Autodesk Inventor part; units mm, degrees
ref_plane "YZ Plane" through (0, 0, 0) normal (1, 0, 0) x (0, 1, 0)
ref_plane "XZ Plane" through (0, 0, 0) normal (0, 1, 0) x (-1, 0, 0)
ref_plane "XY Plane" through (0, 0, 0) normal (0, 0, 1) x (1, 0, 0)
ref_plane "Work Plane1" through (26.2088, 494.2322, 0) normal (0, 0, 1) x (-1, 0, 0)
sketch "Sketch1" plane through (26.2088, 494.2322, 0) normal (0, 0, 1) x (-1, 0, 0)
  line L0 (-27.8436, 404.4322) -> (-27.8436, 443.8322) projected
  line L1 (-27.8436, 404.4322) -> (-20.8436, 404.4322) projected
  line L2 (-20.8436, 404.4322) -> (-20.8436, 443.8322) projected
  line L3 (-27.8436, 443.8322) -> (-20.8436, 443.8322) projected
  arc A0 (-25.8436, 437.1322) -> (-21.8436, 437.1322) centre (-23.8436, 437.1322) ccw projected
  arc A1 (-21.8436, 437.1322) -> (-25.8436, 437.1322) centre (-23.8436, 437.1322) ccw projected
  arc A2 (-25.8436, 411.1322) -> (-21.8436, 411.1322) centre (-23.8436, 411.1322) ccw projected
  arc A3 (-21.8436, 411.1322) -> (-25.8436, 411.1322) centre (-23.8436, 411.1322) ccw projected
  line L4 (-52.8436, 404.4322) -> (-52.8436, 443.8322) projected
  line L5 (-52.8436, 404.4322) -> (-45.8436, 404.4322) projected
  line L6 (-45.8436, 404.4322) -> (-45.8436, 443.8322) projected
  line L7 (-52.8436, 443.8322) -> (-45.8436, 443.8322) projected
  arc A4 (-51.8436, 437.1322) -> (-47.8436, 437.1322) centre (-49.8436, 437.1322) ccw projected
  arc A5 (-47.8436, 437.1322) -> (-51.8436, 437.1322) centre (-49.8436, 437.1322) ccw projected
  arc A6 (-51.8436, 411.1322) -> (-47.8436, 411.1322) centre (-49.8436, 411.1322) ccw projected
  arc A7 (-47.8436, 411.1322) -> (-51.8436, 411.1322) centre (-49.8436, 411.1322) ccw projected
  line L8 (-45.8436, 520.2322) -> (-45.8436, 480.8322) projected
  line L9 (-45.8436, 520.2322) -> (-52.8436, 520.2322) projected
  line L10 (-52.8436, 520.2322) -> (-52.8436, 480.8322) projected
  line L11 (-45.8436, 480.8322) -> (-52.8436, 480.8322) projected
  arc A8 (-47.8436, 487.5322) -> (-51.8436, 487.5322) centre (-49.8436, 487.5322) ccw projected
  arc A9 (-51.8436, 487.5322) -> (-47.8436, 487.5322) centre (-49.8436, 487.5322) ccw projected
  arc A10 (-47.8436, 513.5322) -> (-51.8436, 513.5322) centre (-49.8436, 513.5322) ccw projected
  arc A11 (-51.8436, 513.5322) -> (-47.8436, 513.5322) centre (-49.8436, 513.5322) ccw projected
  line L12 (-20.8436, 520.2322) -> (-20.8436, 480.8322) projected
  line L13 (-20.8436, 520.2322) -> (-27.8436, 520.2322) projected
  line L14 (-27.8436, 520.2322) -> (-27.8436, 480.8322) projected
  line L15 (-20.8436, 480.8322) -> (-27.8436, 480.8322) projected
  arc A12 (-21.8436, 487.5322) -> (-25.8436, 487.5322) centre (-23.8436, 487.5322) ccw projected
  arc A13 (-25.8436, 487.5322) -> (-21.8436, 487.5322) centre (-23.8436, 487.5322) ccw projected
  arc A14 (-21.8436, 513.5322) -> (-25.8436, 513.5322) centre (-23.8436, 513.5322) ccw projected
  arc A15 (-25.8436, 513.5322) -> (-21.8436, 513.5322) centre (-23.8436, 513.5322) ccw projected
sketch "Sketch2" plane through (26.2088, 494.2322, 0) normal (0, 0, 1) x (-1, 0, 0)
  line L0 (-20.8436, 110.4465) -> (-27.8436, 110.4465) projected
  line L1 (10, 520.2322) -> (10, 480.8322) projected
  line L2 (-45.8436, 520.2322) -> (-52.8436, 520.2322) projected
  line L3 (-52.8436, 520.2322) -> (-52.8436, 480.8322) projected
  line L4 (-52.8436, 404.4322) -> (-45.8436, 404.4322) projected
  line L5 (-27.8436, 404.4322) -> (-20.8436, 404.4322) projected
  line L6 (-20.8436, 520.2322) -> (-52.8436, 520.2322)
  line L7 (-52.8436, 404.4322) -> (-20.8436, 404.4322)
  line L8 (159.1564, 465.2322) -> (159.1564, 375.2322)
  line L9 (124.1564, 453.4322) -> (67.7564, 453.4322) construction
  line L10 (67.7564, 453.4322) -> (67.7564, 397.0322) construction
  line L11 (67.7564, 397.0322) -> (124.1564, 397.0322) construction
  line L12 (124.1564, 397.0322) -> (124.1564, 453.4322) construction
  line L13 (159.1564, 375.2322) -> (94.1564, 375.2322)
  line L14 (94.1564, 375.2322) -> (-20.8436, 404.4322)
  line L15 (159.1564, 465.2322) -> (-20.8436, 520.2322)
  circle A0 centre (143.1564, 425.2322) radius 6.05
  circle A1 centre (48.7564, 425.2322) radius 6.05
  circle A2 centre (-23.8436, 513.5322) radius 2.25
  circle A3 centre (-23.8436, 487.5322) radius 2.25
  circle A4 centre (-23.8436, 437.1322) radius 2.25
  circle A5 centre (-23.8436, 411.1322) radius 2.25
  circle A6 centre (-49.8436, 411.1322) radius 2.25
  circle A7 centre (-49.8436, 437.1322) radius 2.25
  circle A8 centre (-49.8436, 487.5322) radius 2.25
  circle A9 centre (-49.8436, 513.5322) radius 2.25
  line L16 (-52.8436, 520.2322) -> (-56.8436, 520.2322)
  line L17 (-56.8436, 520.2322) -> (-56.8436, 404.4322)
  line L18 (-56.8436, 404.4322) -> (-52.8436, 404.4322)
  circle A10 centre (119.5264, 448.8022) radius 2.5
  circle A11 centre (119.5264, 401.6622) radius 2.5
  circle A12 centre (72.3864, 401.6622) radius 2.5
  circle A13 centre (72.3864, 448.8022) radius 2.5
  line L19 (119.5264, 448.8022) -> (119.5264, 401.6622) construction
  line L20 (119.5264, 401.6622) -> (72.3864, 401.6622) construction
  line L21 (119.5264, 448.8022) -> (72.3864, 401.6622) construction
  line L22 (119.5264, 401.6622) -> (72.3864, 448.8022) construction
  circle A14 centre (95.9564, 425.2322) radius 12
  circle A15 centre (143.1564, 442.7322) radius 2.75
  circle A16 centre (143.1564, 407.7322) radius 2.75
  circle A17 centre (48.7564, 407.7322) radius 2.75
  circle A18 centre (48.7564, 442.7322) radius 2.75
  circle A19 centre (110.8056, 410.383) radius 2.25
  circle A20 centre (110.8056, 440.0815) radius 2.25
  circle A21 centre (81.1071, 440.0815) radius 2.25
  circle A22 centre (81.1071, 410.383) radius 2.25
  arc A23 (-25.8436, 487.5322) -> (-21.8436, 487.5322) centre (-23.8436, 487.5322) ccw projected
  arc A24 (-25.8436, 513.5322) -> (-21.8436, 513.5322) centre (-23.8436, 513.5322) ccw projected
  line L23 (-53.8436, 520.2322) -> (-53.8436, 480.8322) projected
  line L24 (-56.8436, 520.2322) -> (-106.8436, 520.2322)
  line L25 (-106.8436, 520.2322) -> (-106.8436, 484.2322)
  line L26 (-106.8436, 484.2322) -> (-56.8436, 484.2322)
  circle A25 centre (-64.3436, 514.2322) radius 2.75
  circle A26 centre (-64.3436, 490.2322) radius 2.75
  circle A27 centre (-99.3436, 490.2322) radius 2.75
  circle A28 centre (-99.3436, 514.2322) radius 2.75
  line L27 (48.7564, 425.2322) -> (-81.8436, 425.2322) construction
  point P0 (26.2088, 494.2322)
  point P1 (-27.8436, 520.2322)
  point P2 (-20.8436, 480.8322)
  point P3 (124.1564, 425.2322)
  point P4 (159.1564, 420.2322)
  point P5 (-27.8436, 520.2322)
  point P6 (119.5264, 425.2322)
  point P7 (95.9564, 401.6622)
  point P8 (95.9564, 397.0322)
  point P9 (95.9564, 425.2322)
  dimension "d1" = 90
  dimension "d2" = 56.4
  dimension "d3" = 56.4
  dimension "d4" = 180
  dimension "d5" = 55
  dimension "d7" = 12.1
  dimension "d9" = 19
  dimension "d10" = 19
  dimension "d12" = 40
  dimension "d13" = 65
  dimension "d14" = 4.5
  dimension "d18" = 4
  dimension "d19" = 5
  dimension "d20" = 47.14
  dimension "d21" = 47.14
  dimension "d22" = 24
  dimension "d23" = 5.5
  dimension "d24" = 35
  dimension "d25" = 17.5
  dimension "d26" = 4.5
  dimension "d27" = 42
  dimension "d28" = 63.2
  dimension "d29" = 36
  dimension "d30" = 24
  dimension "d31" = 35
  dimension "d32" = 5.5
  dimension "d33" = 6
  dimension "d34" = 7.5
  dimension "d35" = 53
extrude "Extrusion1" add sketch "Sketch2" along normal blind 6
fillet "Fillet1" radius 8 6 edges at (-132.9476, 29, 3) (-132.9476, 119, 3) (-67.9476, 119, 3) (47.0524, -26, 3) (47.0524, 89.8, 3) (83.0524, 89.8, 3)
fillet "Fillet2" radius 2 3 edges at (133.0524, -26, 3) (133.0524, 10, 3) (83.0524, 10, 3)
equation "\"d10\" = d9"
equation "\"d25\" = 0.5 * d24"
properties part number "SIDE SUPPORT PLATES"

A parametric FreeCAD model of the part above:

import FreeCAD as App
import Part
import Sketcher

V = App.Vector
Q = App.Units.Quantity


def edges_at(feature, points):
    """Names of the edges that pass closest to the given points."""
    edges = feature.Shape.Edges
    near = lambda p: min(range(len(edges)), key=lambda i: edges[i].distToShape(Part.Vertex(*p))[0])
    return sorted({f"Edge{near(p) + 1}" for p in points})

doc = App.newDocument("Part")
body = doc.addObject("PartDesign::Body", "Body")

sketch1 = body.newObject("Sketcher::SketchObject", "Sketch")
sketch1.AttachmentSupport = (doc.getObject("XY_Plane"), [""])
sketch1.MapMode = "FlatFace"
sketch1.addGeometry(Part.LineSegment(V(47.1, -26, 0), V(133.1, -26, 0)), False)
sketch1.addGeometry(Part.LineSegment(V(133.1, -26, 0), V(133.1, 10, 0)), False)
sketch1.addGeometry(Part.LineSegment(V(133.1, 10, 0), V(83.1, 10, 0)), False)
sketch1.addGeometry(Part.LineSegment(V(83.1, 10, 0), V(83.1, 89.8, 0)), False)
sketch1.addGeometry(Part.LineSegment(V(83.1, 89.8, 0), V(47.1, 89.8, 0)), False)
sketch1.addGeometry(Part.LineSegment(V(47.1, 89.8, 0), V(-67.9, 119, 0)), False)
sketch1.addGeometry(Part.LineSegment(V(-67.9, 119, 0), V(-132.9, 119, 0)), False)
sketch1.addGeometry(Part.LineSegment(V(-132.9, 119, 0), V(-132.9, 29, 0)), False)
sketch1.addGeometry(Part.LineSegment(V(-132.9, 29, 0), V(47.1, -26, 0)), False)
sketch1.addGeometry(Part.Circle(V(76.1, 83.1, 0), V(0, 0, 1), 2.2), False)
sketch1.addGeometry(Part.Circle(V(50.1, 83.1, 0), V(0, 0, 1), 2.2), False)
sketch1.addGeometry(Part.Circle(V(76.1, 57.1, 0), V(0, 0, 1), 2.2), False)
sketch1.addGeometry(Part.Circle(V(50.1, 57.1, 0), V(0, 0, 1), 2.2), False)
sketch1.addGeometry(Part.Circle(V(-22.5, 86.5, 0), V(0, 0, 1), 2.8), False)
sketch1.addGeometry(Part.Circle(V(-46.2, 92.6, 0), V(0, 0, 1), 2.5), False)
sketch1.addGeometry(Part.Circle(V(-54.9, 83.8, 0), V(0, 0, 1), 2.2), False)
sketch1.addGeometry(Part.Circle(V(-93.3, 92.6, 0), V(0, 0, 1), 2.5), False)
sketch1.addGeometry(Part.Circle(V(-84.6, 83.8, 0), V(0, 0, 1), 2.2), False)
sketch1.addGeometry(Part.Circle(V(-116.9, 86.5, 0), V(0, 0, 1), 2.8), False)
sketch1.addGeometry(Part.Circle(V(-22.5, 69, 0), V(0, 0, 1), 6), False)
sketch1.addGeometry(Part.Circle(V(-22.5, 51.5, 0), V(0, 0, 1), 2.8), False)
sketch1.addGeometry(Part.Circle(V(-54.9, 54.2, 0), V(0, 0, 1), 2.2), False)
sketch1.addGeometry(Part.Circle(V(-69.7, 69, 0), V(0, 0, 1), 12), False)
sketch1.addGeometry(Part.Circle(V(-116.9, 69, 0), V(0, 0, 1), 6), False)
sketch1.addGeometry(Part.Circle(V(-84.6, 54.2, 0), V(0, 0, 1), 2.2), False)
sketch1.addGeometry(Part.Circle(V(-116.9, 51.5, 0), V(0, 0, 1), 2.8), False)
sketch1.addGeometry(Part.Circle(V(76.1, 6.7, 0), V(0, 0, 1), 2.2), False)
sketch1.addGeometry(Part.Circle(V(76.1, -19.3, 0), V(0, 0, 1), 2.2), False)
sketch1.addGeometry(Part.Circle(V(50.1, 6.7, 0), V(0, 0, 1), 2.2), False)
sketch1.addGeometry(Part.Circle(V(50.1, -19.3, 0), V(0, 0, 1), 2.2), False)
sketch1.addGeometry(Part.Circle(V(-46.2, 45.4, 0), V(0, 0, 1), 2.5), False)
sketch1.addGeometry(Part.Circle(V(-93.3, 45.4, 0), V(0, 0, 1), 2.5), False)
sketch1.addGeometry(Part.Circle(V(90.6, -20, 0), V(0, 0, 1), 2.8), False)
sketch1.addGeometry(Part.Circle(V(125.6, 4, 0), V(0, 0, 1), 2.8), False)
sketch1.addGeometry(Part.Circle(V(90.6, 4, 0), V(0, 0, 1), 2.8), False)
sketch1.addGeometry(Part.Circle(V(125.6, -20, 0), V(0, 0, 1), 2.8), False)
sketch1.addConstraint(Sketcher.Constraint("Coincident", 0, 2, 1, 1))
sketch1.addConstraint(Sketcher.Constraint("Coincident", 1, 2, 2, 1))
sketch1.addConstraint(Sketcher.Constraint("Coincident", 2, 2, 3, 1))
sketch1.addConstraint(Sketcher.Constraint("Coincident", 3, 2, 4, 1))
sketch1.addConstraint(Sketcher.Constraint("Coincident", 4, 2, 5, 1))
sketch1.addConstraint(Sketcher.Constraint("Coincident", 5, 2, 6, 1))
sketch1.addConstraint(Sketcher.Constraint("Coincident", 6, 2, 7, 1))
sketch1.addConstraint(Sketcher.Constraint("Coincident", 7, 2, 8, 1))
sketch1.addConstraint(Sketcher.Constraint("Coincident", 8, 2, 0, 1))
sketch1.addConstraint(Sketcher.Constraint("Horizontal", 0))
sketch1.addConstraint(Sketcher.Constraint("Vertical", 1))
sketch1.addConstraint(Sketcher.Constraint("Horizontal", 2))
sketch1.addConstraint(Sketcher.Constraint("Vertical", 3))
sketch1.addConstraint(Sketcher.Constraint("Horizontal", 4))
sketch1.addConstraint(Sketcher.Constraint("Horizontal", 6))
sketch1.addConstraint(Sketcher.Constraint("Vertical", 7))
sketch1.addConstraint(Sketcher.Constraint("Equal", 9, 10))
sketch1.addConstraint(Sketcher.Constraint("Equal", 10, 11))
sketch1.addConstraint(Sketcher.Constraint("Equal", 11, 12))
sketch1.addConstraint(Sketcher.Constraint("Equal", 12, 15))
sketch1.addConstraint(Sketcher.Constraint("Equal", 14, 16))
sketch1.addConstraint(Sketcher.Constraint("Equal", 15, 17))
sketch1.addConstraint(Sketcher.Constraint("Equal", 13, 18))
sketch1.addConstraint(Sketcher.Constraint("Equal", 18, 20))
sketch1.addConstraint(Sketcher.Constraint("Equal", 17, 21))
sketch1.addConstraint(Sketcher.Constraint("Equal", 19, 23))
sketch1.addConstraint(Sketcher.Constraint("Equal", 21, 24))
sketch1.addConstraint(Sketcher.Constraint("Equal", 20, 25))
sketch1.addConstraint(Sketcher.Constraint("Equal", 24, 26))
sketch1.addConstraint(Sketcher.Constraint("Equal", 26, 27))
sketch1.addConstraint(Sketcher.Constraint("Equal", 27, 28))
sketch1.addConstraint(Sketcher.Constraint("Equal", 28, 29))
sketch1.addConstraint(Sketcher.Constraint("Equal", 16, 30))
sketch1.addConstraint(Sketcher.Constraint("Equal", 30, 31))
sketch1.addConstraint(Sketcher.Constraint("Equal", 25, 32))
sketch1.addConstraint(Sketcher.Constraint("Equal", 32, 33))
sketch1.addConstraint(Sketcher.Constraint("Equal", 33, 34))
sketch1.addConstraint(Sketcher.Constraint("Equal", 34, 35))
sketch1.addConstraint(Sketcher.Constraint("Horizontal", 9, 3, 10, 3))
sketch1.addConstraint(Sketcher.Constraint("Horizontal", 11, 3, 12, 3))
sketch1.addConstraint(Sketcher.Constraint("Horizontal", 14, 3, 16, 3))
sketch1.addConstraint(Sketcher.Constraint("Horizontal", 15, 3, 17, 3))
sketch1.addConstraint(Sketcher.Constraint("Horizontal", 13, 3, 18, 3))
sketch1.addConstraint(Sketcher.Constraint("Horizontal", 19, 3, 22, 3))
sketch1.addConstraint(Sketcher.Constraint("Horizontal", 22, 3, 23, 3))
sketch1.addConstraint(Sketcher.Constraint("Horizontal", 21, 3, 24, 3))
sketch1.addConstraint(Sketcher.Constraint("Horizontal", 20, 3, 25, 3))
sketch1.addConstraint(Sketcher.Constraint("Horizontal", 26, 3, 28, 3))
sketch1.addConstraint(Sketcher.Constraint("Horizontal", 27, 3, 29, 3))
sketch1.addConstraint(Sketcher.Constraint("Horizontal", 30, 3, 31, 3))
sketch1.addConstraint(Sketcher.Constraint("Horizontal", 33, 3, 34, 3))
sketch1.addConstraint(Sketcher.Constraint("Horizontal", 32, 3, 35, 3))
sketch1.addConstraint(Sketcher.Constraint("Vertical", 9, 3, 11, 3))
sketch1.addConstraint(Sketcher.Constraint("Vertical", 10, 3, 12, 3))
sketch1.addConstraint(Sketcher.Constraint("Vertical", 13, 3, 19, 3))
sketch1.addConstraint(Sketcher.Constraint("Vertical", 19, 3, 20, 3))
sketch1.addConstraint(Sketcher.Constraint("Vertical", 15, 3, 21, 3))
sketch1.addConstraint(Sketcher.Constraint("Vertical", 18, 3, 23, 3))
sketch1.addConstraint(Sketcher.Constraint("Vertical", 17, 3, 24, 3))
sketch1.addConstraint(Sketcher.Constraint("Vertical", 23, 3, 25, 3))
sketch1.addConstraint(Sketcher.Constraint("Vertical", 11, 3, 26, 3))
sketch1.addConstraint(Sketcher.Constraint("Vertical", 26, 3, 27, 3))
sketch1.addConstraint(Sketcher.Constraint("Vertical", 12, 3, 28, 3))
sketch1.addConstraint(Sketcher.Constraint("Vertical", 28, 3, 29, 3))
sketch1.addConstraint(Sketcher.Constraint("Vertical", 14, 3, 30, 3))
sketch1.addConstraint(Sketcher.Constraint("Vertical", 16, 3, 31, 3))
sketch1.addConstraint(Sketcher.Constraint("Vertical", 32, 3, 34, 3))
sketch1.addConstraint(Sketcher.Constraint("Vertical", 33, 3, 35, 3))
sketch1.addConstraint(Sketcher.Constraint("Vertical", 4, 2, 8, 2))
sketch1.addConstraint(Sketcher.Constraint("Equal", 4, 1))
sketch1.addConstraint(Sketcher.Constraint("Diameter", 14, Q("5 mm")))
sketch1.addConstraint(Sketcher.Constraint("Diameter", 22, Q("24 mm")))
sketch1.addConstraint(Sketcher.Constraint("Diameter", 9, Q("4.5 mm")))
sketch1.addConstraint(Sketcher.Constraint("Diameter", 13, Q("5.5 mm")))
sketch1.addConstraint(Sketcher.Constraint("Diameter", 19, Q("12.1 mm")))
sketch1.addConstraint(Sketcher.Constraint("DistanceX", 4, 2, 4, 1, Q("36 mm")))
sketch1.addConstraint(Sketcher.Constraint("DistanceX", 6, 2, 6, 1, Q("65 mm")))
sketch1.addConstraint(Sketcher.Constraint("DistanceY", 7, 2, 7, 1, Q("90 mm")))
sketch1.addConstraint(Sketcher.Constraint("DistanceY", -1, 1, 33, 3, Q("4 mm")))
sketch1.addConstraint(Sketcher.Constraint("DistanceY", 20, 3, 13, 3, Q("35 mm")))
sketch1.addConstraint(Sketcher.Constraint("DistanceX", 32, 3, 33, 3, Q("35 mm")))
sketch1.addConstraint(Sketcher.Constraint("DistanceY", 32, 3, 33, 3, Q("24 mm")))
sketch1.addConstraint(Sketcher.Constraint("DistanceY", 0, 2, 35, 3, Q("6 mm")))
sketch1.addConstraint(Sketcher.Constraint("DistanceY", 7, 2, 23, 3, Q("40 mm")))
sketch1.addConstraint(Sketcher.Constraint("DistanceY", 19, 3, 13, 3, Q("17.5 mm")))
sketch1.addConstraint(Sketcher.Constraint("DistanceX", 35, 3, 0, 2, Q("7.5 mm")))
sketch1.addConstraint(Sketcher.Constraint("DistanceX", 2, 2, 34, 3, Q("7.5 mm")))
sketch1.addConstraint(Sketcher.Constraint("DistanceX", 16, 3, 14, 3, Q("47.14 mm")))
sketch1.addConstraint(Sketcher.Constraint("DistanceY", 3, 1, 3, 2, Q("79.8 mm")))
sketch1.addConstraint(Sketcher.Constraint("DistanceY", -1, 1, 19, 3, Q("69 mm")))
sketch1.addConstraint(Sketcher.Constraint("DistanceX", 10, 3, 9, 3, Q("26 mm")))
sketch1.addConstraint(Sketcher.Constraint("DistanceY", 11, 3, 9, 3, Q("26 mm")))
sketch1.addConstraint(Sketcher.Constraint("DistanceY", 27, 3, 26, 3, Q("26 mm")))
sketch1.addConstraint(Sketcher.Constraint("DistanceX", 27, 3, 0, 2, Q("57 mm")))
sketch1.addConstraint(Sketcher.Constraint("DistanceX", 6, 2, 18, 3, Q("16 mm")))
sketch1.addConstraint(Sketcher.Constraint("DistanceY", -1, 1, 9, 3, Q("83.1 mm")))
sketch1.addConstraint(Sketcher.Constraint("DistanceY", -1, 1, 26, 3, Q("6.7 mm")))
sketch1.addConstraint(Sketcher.Constraint("Angle", 8, Q("-16.9908 deg")))
sketch1.addConstraint(Sketcher.Constraint("DistanceX", 13, 3, 10, 3, Q("72.6 mm")))
sketch1.addConstraint(Sketcher.Constraint("DistanceX", 23, 3, 22, 3, Q("47.2 mm")))
sketch1.addConstraint(Sketcher.Constraint("DistanceY", -1, 1, 14, 3, Q("92.57 mm")))
sketch1.addConstraint(Sketcher.Constraint("DistanceY", -1, 1, 30, 3, Q("45.43 mm")))
sketch1.addConstraint(Sketcher.Constraint("DistanceX", 14, 3, 13, 3, Q("23.63 mm")))
sketch1.addConstraint(Sketcher.Constraint("DistanceX", -1, 1, 9, 3, Q("76.0524 mm")))
sketch1.addConstraint(Sketcher.Constraint("DistanceX", 15, 3, -1, 1, Q("54.8983 mm")))
sketch1.addConstraint(Sketcher.Constraint("DistanceY", -1, 1, 15, 3, Q("83.8492 mm")))
sketch1.addConstraint(Sketcher.Constraint("DistanceX", 17, 3, -1, 1, Q("84.5968 mm")))
sketch1.addConstraint(Sketcher.Constraint("DistanceY", -1, 1, 21, 3, Q("54.1507 mm")))
pad1 = body.newObject("PartDesign::Pad", "Pad")
pad1.Profile = sketch1
pad1.Length = 6
doc.recompute()

fillet = body.newObject("PartDesign::Fillet", "Fillet")
fillet.Base = (pad1, edges_at(pad1, [
    (-132.948, 29, 3),
    (-132.948, 119, 3),
    (-67.948, 119, 3),
    (47.052, -26, 3),
    (47.052, 89.8, 3),
    (83.052, 89.8, 3),
]))
fillet.Radius = 8
doc.recompute()

fillet2 = body.newObject("PartDesign::Fillet", "Fillet001")
fillet2.Base = (fillet, edges_at(fillet, [(133.052, -26, 3), (133.052, 10, 3), (83.052, 10, 3)]))
fillet2.Radius = 2

doc.recompute()
